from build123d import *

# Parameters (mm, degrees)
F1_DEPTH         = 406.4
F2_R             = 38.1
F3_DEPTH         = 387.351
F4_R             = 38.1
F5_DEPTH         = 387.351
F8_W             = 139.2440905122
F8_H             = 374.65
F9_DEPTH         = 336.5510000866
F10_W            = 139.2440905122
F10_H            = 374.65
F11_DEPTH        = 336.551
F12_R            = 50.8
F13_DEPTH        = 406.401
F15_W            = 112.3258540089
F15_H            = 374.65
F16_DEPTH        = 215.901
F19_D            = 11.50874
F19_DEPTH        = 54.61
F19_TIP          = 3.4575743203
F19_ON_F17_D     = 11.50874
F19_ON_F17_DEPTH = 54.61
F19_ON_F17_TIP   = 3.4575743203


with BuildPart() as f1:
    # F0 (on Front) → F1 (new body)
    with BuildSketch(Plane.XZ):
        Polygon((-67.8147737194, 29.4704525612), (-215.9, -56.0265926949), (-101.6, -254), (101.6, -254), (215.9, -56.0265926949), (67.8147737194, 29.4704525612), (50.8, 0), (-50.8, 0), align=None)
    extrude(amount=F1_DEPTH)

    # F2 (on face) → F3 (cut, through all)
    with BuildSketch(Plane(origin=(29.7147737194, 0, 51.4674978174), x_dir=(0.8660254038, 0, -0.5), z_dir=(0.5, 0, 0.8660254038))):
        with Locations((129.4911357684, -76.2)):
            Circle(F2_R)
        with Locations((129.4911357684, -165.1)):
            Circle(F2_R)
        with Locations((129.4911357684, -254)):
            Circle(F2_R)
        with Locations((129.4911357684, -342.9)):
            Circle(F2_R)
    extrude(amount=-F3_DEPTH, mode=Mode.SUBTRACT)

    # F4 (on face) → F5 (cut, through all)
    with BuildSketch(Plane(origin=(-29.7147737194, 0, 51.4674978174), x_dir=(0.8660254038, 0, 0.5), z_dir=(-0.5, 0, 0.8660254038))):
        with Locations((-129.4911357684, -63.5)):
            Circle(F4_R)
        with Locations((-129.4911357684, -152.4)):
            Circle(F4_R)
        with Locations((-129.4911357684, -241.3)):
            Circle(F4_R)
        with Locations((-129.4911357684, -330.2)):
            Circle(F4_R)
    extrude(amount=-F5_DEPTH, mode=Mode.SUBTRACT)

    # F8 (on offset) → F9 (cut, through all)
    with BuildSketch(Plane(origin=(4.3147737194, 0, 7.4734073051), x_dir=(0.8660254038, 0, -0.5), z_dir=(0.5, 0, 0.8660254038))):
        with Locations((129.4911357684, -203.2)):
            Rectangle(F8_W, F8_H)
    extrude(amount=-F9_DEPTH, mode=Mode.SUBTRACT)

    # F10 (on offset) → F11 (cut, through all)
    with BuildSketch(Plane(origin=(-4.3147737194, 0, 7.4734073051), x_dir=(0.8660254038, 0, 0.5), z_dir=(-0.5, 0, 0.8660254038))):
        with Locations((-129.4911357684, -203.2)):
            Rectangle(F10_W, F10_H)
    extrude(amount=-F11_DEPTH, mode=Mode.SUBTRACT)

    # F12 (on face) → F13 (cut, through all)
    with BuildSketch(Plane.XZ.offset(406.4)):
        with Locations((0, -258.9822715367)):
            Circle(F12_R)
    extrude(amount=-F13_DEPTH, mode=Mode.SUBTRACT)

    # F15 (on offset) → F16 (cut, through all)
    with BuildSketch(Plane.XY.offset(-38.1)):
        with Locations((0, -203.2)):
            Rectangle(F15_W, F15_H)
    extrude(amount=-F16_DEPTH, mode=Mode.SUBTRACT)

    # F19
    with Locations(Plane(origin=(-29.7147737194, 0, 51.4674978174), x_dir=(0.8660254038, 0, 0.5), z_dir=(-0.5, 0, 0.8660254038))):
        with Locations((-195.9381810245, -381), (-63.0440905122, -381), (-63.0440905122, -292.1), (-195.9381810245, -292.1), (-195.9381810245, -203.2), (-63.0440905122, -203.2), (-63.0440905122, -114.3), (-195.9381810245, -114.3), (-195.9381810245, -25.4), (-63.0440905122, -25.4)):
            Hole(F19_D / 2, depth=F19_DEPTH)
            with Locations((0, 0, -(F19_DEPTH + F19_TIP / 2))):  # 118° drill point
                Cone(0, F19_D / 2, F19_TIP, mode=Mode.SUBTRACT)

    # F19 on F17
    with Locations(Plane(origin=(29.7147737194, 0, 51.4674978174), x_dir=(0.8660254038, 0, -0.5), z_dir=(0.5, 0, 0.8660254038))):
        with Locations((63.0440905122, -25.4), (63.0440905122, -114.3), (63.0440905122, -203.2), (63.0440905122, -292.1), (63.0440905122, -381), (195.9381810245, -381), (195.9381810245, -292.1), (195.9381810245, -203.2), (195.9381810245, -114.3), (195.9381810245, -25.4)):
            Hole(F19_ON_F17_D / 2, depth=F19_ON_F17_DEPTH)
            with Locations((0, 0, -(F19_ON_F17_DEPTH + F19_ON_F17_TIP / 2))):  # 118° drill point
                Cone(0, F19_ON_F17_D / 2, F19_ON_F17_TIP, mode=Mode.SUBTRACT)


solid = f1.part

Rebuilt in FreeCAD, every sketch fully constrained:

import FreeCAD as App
import Part
import Sketcher
from FreeCAD import Vector
Q = App.Units.Quantity

doc = App.newDocument("Part")
body = doc.addObject("PartDesign::Body", "Body")

# Sketch on XZ plane
sketch1 = body.newObject("Sketcher::SketchObject", "Sketch")
sketch1.AttachmentSupport = (doc.getObject("XZ_Plane"), [""])
sketch1.MapMode = "FlatFace"
sketch1.addGeometry([
    Part.LineSegment(Vector(-68, 29, 0), Vector(-216, -56, 0)),  # 0
    Part.LineSegment(Vector(-216, -56, 0), Vector(-102, -254, 0)),  # 1
    Part.LineSegment(Vector(-102, -254, 0), Vector(102, -254, 0)),  # 2
    Part.LineSegment(Vector(102, -254, 0), Vector(216, -56, 0)),  # 3
    Part.LineSegment(Vector(216, -56, 0), Vector(68, 29, 0)),  # 4
    Part.LineSegment(Vector(68, 29, 0), Vector(51, 0, 0)),  # 5
    Part.LineSegment(Vector(51, 0, 0), Vector(-51, 0, 0)),  # 6
    Part.LineSegment(Vector(-51, 0, 0), Vector(-68, 29, 0)),  # 7
], False)
sketch1.addConstraint([
    Sketcher.Constraint("Coincident", 0, 2, 1, 1),
    Sketcher.Constraint("Coincident", 1, 2, 2, 1),
    Sketcher.Constraint("Coincident", 2, 2, 3, 1),
    Sketcher.Constraint("Coincident", 3, 2, 4, 1),
    Sketcher.Constraint("Coincident", 4, 2, 5, 1),
    Sketcher.Constraint("Coincident", 5, 2, 6, 1),
    Sketcher.Constraint("Coincident", 6, 2, 7, 1),
    Sketcher.Constraint("Coincident", 7, 2, 0, 1),
    Sketcher.Constraint("Horizontal", 2),
    Sketcher.Constraint("Horizontal", 6),
    Sketcher.Constraint("Symmetric", 5, 2, 6, 2, -1, 1),
    Sketcher.Constraint("Symmetric", 0, 2, 3, 2, -2),
    Sketcher.Constraint("Symmetric", 4, 2, 7, 2, -2),
    Sketcher.Constraint("Perpendicular", 0, 1),
    Sketcher.Constraint("Perpendicular", 3, 4),
    Sketcher.Constraint("Perpendicular", 4, 5),
    Sketcher.Constraint("DistanceX", 2, 1, 2, 2, Q("8 in")),
    Sketcher.Constraint("DistanceX", 6, 2, 6, 1, Q("4 in")),
    Sketcher.Constraint("Distance", 1, Q("9 in")),
    Sketcher.Constraint("DistanceY", 1, 2, -1, 1, Q("10 in")),
    Sketcher.Constraint("Angle", 0, Q("-150 deg")),
])
pad1 = body.newObject("PartDesign::Pad", "Pad")
pad1.Profile = sketch1
pad1.Length = Q("16 in")

# Sketch on an angled plane
sketch2 = body.newObject("Sketcher::SketchObject", "Sketch001")
sketch2.Placement = App.Placement(Vector(29.714774, 0, 51.467498), App.Rotation(Vector(0.866025404, 0, -0.5), Vector(0, 1, 0), Vector(0.5, 0, 0.866025404), "ZXY"))
sketch2.addGeometry([
    Part.Circle(Vector(129, -76, 0), Vector(0, 0, 1), 38),
    Part.Circle(Vector(129, -165, 0), Vector(0, 0, 1), 38),
    Part.Circle(Vector(129, -254, 0), Vector(0, 0, 1), 38),
    Part.Circle(Vector(129, -343, 0), Vector(0, 0, 1), 38),
], False)
sketch2.addConstraint([
    Sketcher.Constraint("Equal", 0, 1),
    Sketcher.Constraint("Equal", 1, 2),
    Sketcher.Constraint("Equal", 2, 3),
    Sketcher.Constraint("Vertical", 0, 3, 1, 3),
    Sketcher.Constraint("Vertical", 1, 3, 2, 3),
    Sketcher.Constraint("Vertical", 2, 3, 3, 3),
    Sketcher.Constraint("Diameter", 0, Q("3 in")),
    Sketcher.Constraint("DistanceY", 0, 3, -1, 1, Q("3 in")),
    Sketcher.Constraint("DistanceY", 2, 3, -1, 1, Q("10 in")),
    Sketcher.Constraint("DistanceY", 3, 3, 1, 3, Q("7 in")),
    Sketcher.Constraint("DistanceY", 1, 3, -1, 1, Q("6.5 in")),
    Sketcher.Constraint("DistanceX", -1, 1, 0, 3, 129.491136),
])
pocket1 = body.newObject("PartDesign::Pocket", "Pocket")
pocket1.Profile = sketch2
pocket1.Type = "ThroughAll"

# Sketch on an angled plane
sketch3 = body.newObject("Sketcher::SketchObject", "Sketch002")
sketch3.Placement = App.Placement(Vector(-29.714774, 0, 51.467498), App.Rotation(Vector(0.866025404, 0, 0.5), Vector(0, 1, 0), Vector(-0.5, 0, 0.866025404), "ZXY"))
sketch3.addGeometry([
    Part.Circle(Vector(-129, -64, 0), Vector(0, 0, 1), 38),
    Part.Circle(Vector(-129, -152, 0), Vector(0, 0, 1), 38),
    Part.Circle(Vector(-129, -241, 0), Vector(0, 0, 1), 38),
    Part.Circle(Vector(-129, -330, 0), Vector(0, 0, 1), 38),
], False)
sketch3.addConstraint([
    Sketcher.Constraint("Equal", 0, 1),
    Sketcher.Constraint("Equal", 1, 2),
    Sketcher.Constraint("Equal", 2, 3),
    Sketcher.Constraint("Vertical", 0, 3, 1, 3),
    Sketcher.Constraint("Vertical", 1, 3, 2, 3),
    Sketcher.Constraint("Vertical", 2, 3, 3, 3),
    Sketcher.Constraint("Diameter", 0, Q("3 in")),
    Sketcher.Constraint("DistanceY", 1, 3, -1, 1, Q("6 in")),
    Sketcher.Constraint("DistanceY", 3, 3, -1, 1, Q("13 in")),
    Sketcher.Constraint("DistanceY", 2, 3, 0, 3, Q("7 in")),
    Sketcher.Constraint("DistanceY", 0, 3, -1, 1, Q("2.5 in")),
    Sketcher.Constraint("DistanceX", 0, 3, -1, 1, 129.491136),
])
pocket2 = body.newObject("PartDesign::Pocket", "Pocket001")
pocket2.Profile = sketch3
pocket2.Type = "ThroughAll"

# Sketch on an angled plane
sketch4 = body.newObject("Sketcher::SketchObject", "Sketch003")
sketch4.Placement = App.Placement(Vector(4.314774, 0, 7.473407), App.Rotation(Vector(0.866025404, 0, -0.5), Vector(0, 1, 0), Vector(0.5, 0, 0.866025404), "ZXY"))
sketch4.addGeometry([
    Part.LineSegment(Vector(60, -16, 0), Vector(60, -391, 0)),
    Part.LineSegment(Vector(60, -391, 0), Vector(199, -391, 0)),
    Part.LineSegment(Vector(199, -391, 0), Vector(199, -16, 0)),
    Part.LineSegment(Vector(199, -16, 0), Vector(60, -16, 0)),
], False)
sketch4.addConstraint([
    Sketcher.Constraint("Coincident", 0, 2, 1, 1),
    Sketcher.Constraint("Coincident", 1, 2, 2, 1),
    Sketcher.Constraint("Coincident", 2, 2, 3, 1),
    Sketcher.Constraint("Coincident", 3, 2, 0, 1),
    Sketcher.Constraint("Vertical", 0),
    Sketcher.Constraint("Horizontal", 1),
    Sketcher.Constraint("Vertical", 2),
    Sketcher.Constraint("Horizontal", 3),
    Sketcher.Constraint("DistanceY", 0, 2, 0, 1, Q("14.75 in")),
    Sketcher.Constraint("DistanceY", 0, 2, -1, 1, Q("15.375 in")),
    Sketcher.Constraint("DistanceX", 1, 1, 1, 2, 139.244091),
    Sketcher.Constraint("DistanceX", -1, 1, 0, 2, 59.869091),
])
pocket3 = body.newObject("PartDesign::Pocket", "Pocket002")
pocket3.Profile = sketch4
pocket3.Type = "ThroughAll"

# Sketch on an angled plane
sketch5 = body.newObject("Sketcher::SketchObject", "Sketch004")
sketch5.Placement = App.Placement(Vector(-4.314774, 0, 7.473407), App.Rotation(Vector(0.866025404, 0, 0.5), Vector(0, 1, 0), Vector(-0.5, 0, 0.866025404), "ZXY"))
sketch5.addGeometry([
    Part.LineSegment(Vector(-199, -16, 0), Vector(-199, -391, 0)),
    Part.LineSegment(Vector(-199, -391, 0), Vector(-60, -391, 0)),
    Part.LineSegment(Vector(-60, -391, 0), Vector(-60, -16, 0)),
    Part.LineSegment(Vector(-60, -16, 0), Vector(-199, -16, 0)),
], False)
sketch5.addConstraint([
    Sketcher.Constraint("Coincident", 0, 2, 1, 1),
    Sketcher.Constraint("Coincident", 1, 2, 2, 1),
    Sketcher.Constraint("Coincident", 2, 2, 3, 1),
    Sketcher.Constraint("Coincident", 3, 2, 0, 1),
    Sketcher.Constraint("Vertical", 0),
    Sketcher.Constraint("Horizontal", 1),
    Sketcher.Constraint("Vertical", 2),
    Sketcher.Constraint("Horizontal", 3),
    Sketcher.Constraint("DistanceY", 0, 2, 0, 1, Q("14.75 in")),
    Sketcher.Constraint("DistanceY", 0, 2, -1, 1, Q("15.375 in")),
    Sketcher.Constraint("DistanceX", 1, 1, 1, 2, 139.244091),
    Sketcher.Constraint("DistanceX", 0, 2, -1, 1, 199.113181),
])
pocket4 = body.newObject("PartDesign::Pocket", "Pocket003")
pocket4.Profile = sketch5
pocket4.Type = "ThroughAll"

# Sketch on XZ plane
sketch6 = body.newObject("Sketcher::SketchObject", "Sketch005")
sketch6.AttachmentSupport = (doc.getObject("XZ_Plane"), [""])
sketch6.MapMode = "FlatFace"
sketch6.AttachmentOffset = App.Placement(Vector(0, 0, 16 * 25.4), App.Rotation())
sketch6.addGeometry(Part.Circle(Vector(0, -259, 0), Vector(0, 0, 1), 51), False)
sketch6.addConstraint([
    Sketcher.Constraint("PointOnObject", 0, 3, -2),
    Sketcher.Constraint("Diameter", 0, Q("4 in")),
    Sketcher.Constraint("DistanceY", 0, 3, -1, 1, 258.982272),
])
pocket5 = body.newObject("PartDesign::Pocket", "Pocket004")
pocket5.Profile = sketch6
pocket5.Type = "ThroughAll"

# Sketch on XY plane
sketch7 = body.newObject("Sketcher::SketchObject", "Sketch006")
sketch7.AttachmentSupport = (doc.getObject("XY_Plane"), [""])
sketch7.MapMode = "FlatFace"
sketch7.AttachmentOffset = App.Placement(Vector(0, 0, -1.5 * 25.4), App.Rotation())
sketch7.addGeometry([
    Part.LineSegment(Vector(-56, -16, 0), Vector(-56, -391, 0)),
    Part.LineSegment(Vector(-56, -391, 0), Vector(56, -391, 0)),
    Part.LineSegment(Vector(56, -391, 0), Vector(56, -16, 0)),
    Part.LineSegment(Vector(56, -16, 0), Vector(-56, -16, 0)),
], False)
sketch7.addConstraint([
    Sketcher.Constraint("Coincident", 0, 2, 1, 1),
    Sketcher.Constraint("Coincident", 1, 2, 2, 1),
    Sketcher.Constraint("Coincident", 2, 2, 3, 1),
    Sketcher.Constraint("Coincident", 3, 2, 0, 1),
    Sketcher.Constraint("Vertical", 0),
    Sketcher.Constraint("Horizontal", 1),
    Sketcher.Constraint("Vertical", 2),
    Sketcher.Constraint("Horizontal", 3),
    Sketcher.Constraint("DistanceY", 0, 2, 0, 1, Q("14.75 in")),
    Sketcher.Constraint("DistanceY", 0, 2, -1, 1, Q("15.375 in")),
    Sketcher.Constraint("DistanceX", 1, 1, 1, 2, 112.325854),
    Sketcher.Constraint("DistanceX", 0, 2, -1, 1, 56.162927),
])
pocket6 = body.newObject("PartDesign::Pocket", "Pocket005")
pocket6.Profile = sketch7
pocket6.Type = "ThroughAll"

# Sketch on an angled plane
sketch8 = body.newObject("Sketcher::SketchObject", "Sketch007")
sketch8.Placement = App.Placement(Vector(-29.714774, 0, 51.467498), App.Rotation(Vector(0.866025404, 0, 0.5), Vector(0, 1, 0), Vector(-0.5, 0, 0.866025404), "ZXY"))
sketch8.addGeometry([
    Part.Circle(Vector(-196, -381, 0), Vector(0, 0, 1), 6),  # 0
    Part.Circle(Vector(-63, -381, 0), Vector(0, 0, 1), 6),  # 1
    Part.Circle(Vector(-63, -292, 0), Vector(0, 0, 1), 6),  # 2
    Part.Circle(Vector(-196, -292, 0), Vector(0, 0, 1), 6),  # 3
    Part.Circle(Vector(-196, -203, 0), Vector(0, 0, 1), 6),  # 4
    Part.Circle(Vector(-63, -203, 0), Vector(0, 0, 1), 6),  # 5
    Part.Circle(Vector(-63, -114, 0), Vector(0, 0, 1), 6),  # 6
    Part.Circle(Vector(-196, -114, 0), Vector(0, 0, 1), 6),  # 7
    Part.Circle(Vector(-196, -25, 0), Vector(0, 0, 1), 6),  # 8
    Part.Circle(Vector(-63, -25, 0), Vector(0, 0, 1), 6),  # 9
], False)
sketch8.addConstraint([
    Sketcher.Constraint("Equal", 0, 1),
    Sketcher.Constraint("Equal", 1, 2),
    Sketcher.Constraint("Equal", 2, 3),
    Sketcher.Constraint("Equal", 3, 4),
    Sketcher.Constraint("Equal", 4, 5),
    Sketcher.Constraint("Equal", 5, 6),
    Sketcher.Constraint("Equal", 6, 7),
    Sketcher.Constraint("Equal", 7, 8),
    Sketcher.Constraint("Equal", 8, 9),
    Sketcher.Constraint("Horizontal", 0, 3, 1, 3),
    Sketcher.Constraint("Horizontal", 2, 3, 3, 3),
    Sketcher.Constraint("Horizontal", 4, 3, 5, 3),
    Sketcher.Constraint("Horizontal", 6, 3, 7, 3),
    Sketcher.Constraint("Horizontal", 8, 3, 9, 3),
    Sketcher.Constraint("Vertical", 1, 3, 2, 3),
    Sketcher.Constraint("Vertical", 0, 3, 3, 3),
    Sketcher.Constraint("Vertical", 3, 3, 4, 3),
    Sketcher.Constraint("Vertical", 2, 3, 5, 3),
    Sketcher.Constraint("Vertical", 5, 3, 6, 3),
    Sketcher.Constraint("Vertical", 4, 3, 7, 3),
    Sketcher.Constraint("Vertical", 7, 3, 8, 3),
    Sketcher.Constraint("Vertical", 6, 3, 9, 3),
    Sketcher.Constraint("DistanceY", 0, 3, -1, 1, Q("15 in")),
    Sketcher.Constraint("DistanceY", 4, 3, -1, 1, Q("8 in")),
    Sketcher.Constraint("DistanceY", 8, 3, -1, 1, Q("1 in")),
    Sketcher.Constraint("DistanceY", 2, 3, 6, 3, Q("7 in")),
    Sketcher.Constraint("Diameter", 0, Q("0.4531 in")),
    Sketcher.Constraint("DistanceY", 2, 3, -1, 1, Q("11.5 in")),
    Sketcher.Constraint("DistanceX", 0, 3, -1, 1, 195.938181),
    Sketcher.Constraint("DistanceX", 1, 3, -1, 1, 63.044091),
])
doc.recompute()
hole = body.newObject("PartDesign::Hole", "Hole")
hole.Profile = sketch8
hole.ThreadType = "None"
hole.Diameter = Q("0.4531 in")
hole.DepthType = "Dimension"
hole.Depth = Q("2.15 in")
hole.DrillPoint = "Angled"
hole.DrillPointAngle = 118

# Sketch on an angled plane
sketch9 = body.newObject("Sketcher::SketchObject", "Sketch008")
sketch9.Placement = App.Placement(Vector(29.714774, 0, 51.467498), App.Rotation(Vector(0.866025404, 0, -0.5), Vector(0, 1, 0), Vector(0.5, 0, 0.866025404), "ZXY"))
sketch9.addGeometry([
    Part.Circle(Vector(63, -25, 0), Vector(0, 0, 1), 6),  # 0
    Part.Circle(Vector(63, -114, 0), Vector(0, 0, 1), 6),  # 1
    Part.Circle(Vector(63, -203, 0), Vector(0, 0, 1), 6),  # 2
    Part.Circle(Vector(63, -292, 0), Vector(0, 0, 1), 6),  # 3
    Part.Circle(Vector(63, -381, 0), Vector(0, 0, 1), 6),  # 4
    Part.Circle(Vector(196, -381, 0), Vector(0, 0, 1), 6),  # 5
    Part.Circle(Vector(196, -292, 0), Vector(0, 0, 1), 6),  # 6
    Part.Circle(Vector(196, -203, 0), Vector(0, 0, 1), 6),  # 7
    Part.Circle(Vector(196, -114, 0), Vector(0, 0, 1), 6),  # 8
    Part.Circle(Vector(196, -25, 0), Vector(0, 0, 1), 6),  # 9
], False)
sketch9.addConstraint([
    Sketcher.Constraint("Equal", 0, 1),
    Sketcher.Constraint("Equal", 1, 2),
    Sketcher.Constraint("Equal", 2, 3),
    Sketcher.Constraint("Equal", 3, 4),
    Sketcher.Constraint("Equal", 4, 5),
    Sketcher.Constraint("Equal", 5, 6),
    Sketcher.Constraint("Equal", 6, 7),
    Sketcher.Constraint("Equal", 7, 8),
    Sketcher.Constraint("Equal", 8, 9),
    Sketcher.Constraint("Horizontal", 4, 3, 5, 3),
    Sketcher.Constraint("Horizontal", 3, 3, 6, 3),
    Sketcher.Constraint("Horizontal", 2, 3, 7, 3),
    Sketcher.Constraint("Horizontal", 1, 3, 8, 3),
    Sketcher.Constraint("Horizontal", 0, 3, 9, 3),
    Sketcher.Constraint("Vertical", 0, 3, 1, 3),
    Sketcher.Constraint("Vertical", 1, 3, 2, 3),
    Sketcher.Constraint("Vertical", 2, 3, 3, 3),
    Sketcher.Constraint("Vertical", 3, 3, 4, 3),
    Sketcher.Constraint("Vertical", 5, 3, 6, 3),
    Sketcher.Constraint("Vertical", 6, 3, 7, 3),
    Sketcher.Constraint("Vertical", 7, 3, 8, 3),
    Sketcher.Constraint("Vertical", 8, 3, 9, 3),
    Sketcher.Constraint("DistanceY", 0, 3, -1, 1, Q("1 in")),
    Sketcher.Constraint("DistanceY", 2, 3, -1, 1, Q("8 in")),
    Sketcher.Constraint("DistanceY", 4, 3, -1, 1, Q("15 in")),
    Sketcher.Constraint("DistanceY", 3, 3, 1, 3, Q("7 in")),
    Sketcher.Constraint("Diameter", 0, Q("0.4531 in")),
    Sketcher.Constraint("DistanceY", 1, 3, -1, 1, Q("4.5 in")),
    Sketcher.Constraint("DistanceX", -1, 1, 0, 3, 63.044091),
    Sketcher.Constraint("DistanceX", -1, 1, 5, 3, 195.938181),
])
doc.recompute()
hole2 = body.newObject("PartDesign::Hole", "Hole001")
hole2.Profile = sketch9
hole2.ThreadType = "None"
hole2.Diameter = Q("0.4531 in")
hole2.DepthType = "Dimension"
hole2.Depth = Q("2.15 in")
hole2.DrillPoint = "Angled"
hole2.DrillPointAngle = 118

doc.recompute()
